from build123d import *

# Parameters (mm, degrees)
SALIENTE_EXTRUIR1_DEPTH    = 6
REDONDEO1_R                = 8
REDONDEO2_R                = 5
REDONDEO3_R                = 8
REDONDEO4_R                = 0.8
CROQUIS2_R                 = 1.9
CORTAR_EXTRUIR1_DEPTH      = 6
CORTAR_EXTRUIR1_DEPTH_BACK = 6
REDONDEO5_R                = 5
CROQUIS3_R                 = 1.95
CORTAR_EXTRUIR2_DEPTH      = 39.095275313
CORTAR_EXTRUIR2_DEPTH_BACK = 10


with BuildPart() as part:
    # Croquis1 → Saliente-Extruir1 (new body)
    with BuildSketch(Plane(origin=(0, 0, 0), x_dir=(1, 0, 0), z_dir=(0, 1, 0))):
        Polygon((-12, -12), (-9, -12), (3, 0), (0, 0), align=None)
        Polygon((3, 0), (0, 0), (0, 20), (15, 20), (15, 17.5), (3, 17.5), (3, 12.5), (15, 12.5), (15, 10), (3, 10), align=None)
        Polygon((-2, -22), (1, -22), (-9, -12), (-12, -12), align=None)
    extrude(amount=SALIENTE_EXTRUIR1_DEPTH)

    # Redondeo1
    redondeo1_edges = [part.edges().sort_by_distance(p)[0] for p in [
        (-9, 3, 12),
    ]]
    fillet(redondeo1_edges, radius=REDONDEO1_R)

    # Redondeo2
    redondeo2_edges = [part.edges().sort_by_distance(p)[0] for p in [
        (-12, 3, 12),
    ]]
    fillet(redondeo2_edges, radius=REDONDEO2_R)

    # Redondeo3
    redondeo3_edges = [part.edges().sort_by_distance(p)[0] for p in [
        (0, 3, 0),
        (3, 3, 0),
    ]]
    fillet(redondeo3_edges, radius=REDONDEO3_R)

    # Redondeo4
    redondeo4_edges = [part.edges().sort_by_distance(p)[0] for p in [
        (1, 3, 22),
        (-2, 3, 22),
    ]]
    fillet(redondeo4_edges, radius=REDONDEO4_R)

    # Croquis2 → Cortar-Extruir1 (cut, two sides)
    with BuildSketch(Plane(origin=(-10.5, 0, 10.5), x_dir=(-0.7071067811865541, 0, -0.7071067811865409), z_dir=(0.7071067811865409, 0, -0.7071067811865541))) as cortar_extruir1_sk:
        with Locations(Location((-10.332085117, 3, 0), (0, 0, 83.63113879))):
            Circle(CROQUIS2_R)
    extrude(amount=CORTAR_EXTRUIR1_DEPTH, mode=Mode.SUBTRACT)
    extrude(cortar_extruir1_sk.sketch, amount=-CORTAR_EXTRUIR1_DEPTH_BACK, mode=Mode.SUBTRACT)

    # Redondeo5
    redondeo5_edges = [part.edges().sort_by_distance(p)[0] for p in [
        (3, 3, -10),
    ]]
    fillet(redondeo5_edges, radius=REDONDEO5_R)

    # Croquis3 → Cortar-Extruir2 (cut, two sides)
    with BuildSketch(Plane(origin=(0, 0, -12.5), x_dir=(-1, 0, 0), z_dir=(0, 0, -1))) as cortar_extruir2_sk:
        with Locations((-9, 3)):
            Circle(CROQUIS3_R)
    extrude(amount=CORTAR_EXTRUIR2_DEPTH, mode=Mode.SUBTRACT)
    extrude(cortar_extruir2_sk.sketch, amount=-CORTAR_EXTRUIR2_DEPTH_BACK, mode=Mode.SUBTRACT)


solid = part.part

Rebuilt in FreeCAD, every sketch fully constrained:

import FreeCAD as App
import Part
import Sketcher

V = App.Vector
Q = App.Units.Quantity


def edges_at(feature, points):
    """Names of the edges that pass closest to the given points."""
    edges = feature.Shape.Edges
    near = lambda p: min(range(len(edges)), key=lambda i: edges[i].distToShape(Part.Vertex(*p))[0])
    return sorted({f"Edge{near(p) + 1}" for p in points})


def add_polygon(sketch, points):
    """Adds a closed chain of lines whose ends are joined by coincident constraints."""
    first, n = sketch.GeometryCount, len(points)
    for a, b in zip(points, points[1:] + points[:1]):
        sketch.addGeometry(Part.LineSegment(App.Vector(*a, 0), App.Vector(*b, 0)), False)
    for i in range(n):
        sketch.addConstraint(Sketcher.Constraint("Coincident", first + i, 2, first + (i + 1) % n, 1))

doc = App.newDocument("Part")
body = doc.addObject("PartDesign::Body", "Body")

# Sketch on XZ plane
sketch1 = body.newObject("Sketcher::SketchObject", "Sketch")
sketch1.AttachmentSupport = (doc.getObject("XZ_Plane"), [""])
sketch1.MapMode = "FlatFace"
add_polygon(sketch1, [(-9, 12), (3, 0), (3, -10), (15, -10), (15, -12.5), (3, -12.5), (3, -17.5), (15, -17.5), (15, -20), (0, -20), (0, 0), (-12, 12), (-2, 22), (1, 22)])  # lines 0-13
sketch1.addConstraint([
    Sketcher.Constraint("Vertical", 1),
    Sketcher.Constraint("Horizontal", 2),
    Sketcher.Constraint("Vertical", 3),
    Sketcher.Constraint("Horizontal", 4),
    Sketcher.Constraint("Vertical", 5),
    Sketcher.Constraint("Horizontal", 6),
    Sketcher.Constraint("Vertical", 7),
    Sketcher.Constraint("Horizontal", 8),
    Sketcher.Constraint("Vertical", 9),
    Sketcher.Constraint("Horizontal", 12),
    Sketcher.Constraint("Coincident", 9, 2, -1, 1),
    Sketcher.Constraint("PointOnObject", 0, 2, -1),
    Sketcher.Constraint("Parallel", 0, 10),
    Sketcher.Constraint("Perpendicular", 10, 11),
    Sketcher.Constraint("Parallel", 11, 13),
    Sketcher.Constraint("Horizontal", 10, 2, 13, 2),
    Sketcher.Constraint("Vertical", 1, 2, 4, 2),
    Sketcher.Constraint("Vertical", 3, 2, 6, 2),
    Sketcher.Constraint("Equal", 3, 7),
    Sketcher.Constraint("DistanceX", 2, 1, 2, 2, 12.0),
    Sketcher.Constraint("DistanceX", 8, 2, 8, 1, 15.0),
    Sketcher.Constraint("DistanceY", 1, 2, 1, 1, 10.0),
    Sketcher.Constraint("DistanceY", 5, 2, 5, 1, 5.0),
    Sketcher.Constraint("DistanceY", 9, 1, 9, 2, 20.0),
    Sketcher.Constraint("Angle", 0, Q("-45 deg")),
    Sketcher.Constraint("DistanceX", 10, 2, -1, 1, 12.0),
    Sketcher.Constraint("DistanceX", 11, 2, -1, 1, 2.0),
])
pad1 = body.newObject("PartDesign::Pad", "Pad")
pad1.Profile = sketch1
pad1.Length = 6
pad1.Reversed = True
doc.recompute()

fillet = body.newObject("PartDesign::Fillet", "Fillet")
fillet.Base = (pad1, edges_at(pad1, [(-9, 3, 12)]))
fillet.Radius = 8
doc.recompute()

fillet2 = body.newObject("PartDesign::Fillet", "Fillet001")
fillet2.Base = (fillet, edges_at(fillet, [(-12, 3, 12)]))
fillet2.Radius = 5
doc.recompute()

fillet3 = body.newObject("PartDesign::Fillet", "Fillet002")
fillet3.Base = (fillet2, edges_at(fillet2, [(0, 3, 0), (3, 3, 0)]))
fillet3.Radius = 8
doc.recompute()

fillet4 = body.newObject("PartDesign::Fillet", "Fillet003")
fillet4.Base = (fillet3, edges_at(fillet3, [(1, 3, 22), (-2, 3, 22)]))
fillet4.Radius = 0.8

# Sketch on an angled plane
sketch2 = body.newObject("Sketcher::SketchObject", "Sketch001")
sketch2.Placement = App.Placement(V(-10.5, 0, 10.5), App.Rotation(V(-0.707106781, 0, -0.707106781), V(0, 0.999999999, 0), V(0.707106781, 0, -0.707106781), "ZXY"))
sketch2.addGeometry(Part.Circle(V(-10.3, 3, 0), V(0, 0, 1), 1.9), False)
sketch2.addConstraint([
    Sketcher.Constraint("Diameter", 0, 3.8),
    Sketcher.Constraint("DistanceY", -1, 1, 0, 3, 3.0),
    Sketcher.Constraint("DistanceX", 0, 3, -1, 1, 10.332085),
])
pocket1 = body.newObject("PartDesign::Pocket", "Pocket")
pocket1.Profile = sketch2
pocket1.Type = "ThroughAll"
pocket1.Midplane = True
doc.recompute()

fillet5 = body.newObject("PartDesign::Fillet", "Fillet004")
fillet5.Base = (pocket1, edges_at(pocket1, [(3, 3, -10)]))
fillet5.Radius = 5

# Sketch on XY plane
sketch3 = body.newObject("Sketcher::SketchObject", "Sketch002")
sketch3.AttachmentSupport = (doc.getObject("XY_Plane"), [""])
sketch3.MapMode = "FlatFace"
sketch3.AttachmentOffset = App.Placement(V(0, 0, -12.5), App.Rotation())
sketch3.addGeometry(Part.Circle(V(9, 3, 0), V(0, 0, 1), 1.9), False)
sketch3.addConstraint([
    Sketcher.Constraint("Diameter", 0, 3.9),
    Sketcher.Constraint("DistanceX", -1, 1, 0, 3, 9.0),
    Sketcher.Constraint("DistanceY", -1, 1, 0, 3, 3.0),
])
pocket2 = body.newObject("PartDesign::Pocket", "Pocket001")
pocket2.Profile = sketch3
pocket2.Type = "ThroughAll"
pocket2.Midplane = True

doc.recompute()
